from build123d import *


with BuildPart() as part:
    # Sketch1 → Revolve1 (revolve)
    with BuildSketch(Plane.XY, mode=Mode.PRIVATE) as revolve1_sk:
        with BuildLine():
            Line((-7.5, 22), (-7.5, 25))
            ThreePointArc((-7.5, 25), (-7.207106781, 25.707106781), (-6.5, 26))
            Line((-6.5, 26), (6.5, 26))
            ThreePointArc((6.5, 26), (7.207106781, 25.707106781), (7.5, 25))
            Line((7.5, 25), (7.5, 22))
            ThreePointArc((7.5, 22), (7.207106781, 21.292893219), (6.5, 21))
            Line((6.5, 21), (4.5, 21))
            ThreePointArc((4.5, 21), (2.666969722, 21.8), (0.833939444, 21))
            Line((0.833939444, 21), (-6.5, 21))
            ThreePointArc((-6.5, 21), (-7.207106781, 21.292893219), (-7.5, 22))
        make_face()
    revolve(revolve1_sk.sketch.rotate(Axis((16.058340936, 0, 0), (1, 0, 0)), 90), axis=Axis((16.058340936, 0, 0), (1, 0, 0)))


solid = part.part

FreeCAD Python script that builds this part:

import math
import FreeCAD as App
import Part
import Sketcher
from FreeCAD import Vector

doc = App.newDocument("Part")
body = doc.addObject("PartDesign::Body", "Body")

sketch1 = body.newObject("Sketcher::SketchObject", "Sketch")
sketch1.AttachmentSupport = (doc.getObject("XY_Plane"), [""])
sketch1.MapMode = "FlatFace"
sketch1.addGeometry([
    Part.LineSegment(Vector(-7.5, 25, 0), Vector(-7.5, 22, 0)),
    Part.ArcOfCircle(Part.Circle(Vector(-6.5, 22, 0), Vector(0, 0, 1), 1), math.radians(-180), math.radians(-90)),
    Part.LineSegment(Vector(-6.5, 21, 0), Vector(0.833939, 21, 0)),
    Part.ArcOfCircle(Part.Circle(Vector(2.66697, 19.3, 0), Vector(0, 0, 1), 2.5), math.radians(42.843643), math.radians(137.156357)),
    Part.LineSegment(Vector(4.5, 21, 0), Vector(6.5, 21, 0)),
    Part.ArcOfCircle(Part.Circle(Vector(6.5, 22, 0), Vector(0, 0, 1), 1), math.radians(-90), math.radians(0)),
    Part.LineSegment(Vector(7.5, 22, 0), Vector(7.5, 25, 0)),
    Part.ArcOfCircle(Part.Circle(Vector(6.5, 25, 0), Vector(0, 0, 1), 1), math.radians(0), math.radians(90)),
    Part.LineSegment(Vector(6.5, 26, 0), Vector(-6.5, 26, 0)),
    Part.ArcOfCircle(Part.Circle(Vector(-6.5, 25, 0), Vector(0, 0, 1), 1), math.radians(90), math.radians(180)),
], False)
sketch1.addConstraint([
    Sketcher.Constraint("Tangent", 0, 2, 1, 1),
    Sketcher.Constraint("Tangent", 1, 2, 2, 1),
    Sketcher.Constraint("Coincident", 2, 2, 3, 2),
    Sketcher.Constraint("Coincident", 3, 1, 4, 1),
    Sketcher.Constraint("Tangent", 4, 2, 5, 1),
    Sketcher.Constraint("Tangent", 5, 2, 6, 1),
    Sketcher.Constraint("Tangent", 6, 2, 7, 1),
    Sketcher.Constraint("Tangent", 7, 2, 8, 1),
    Sketcher.Constraint("Tangent", 8, 2, 9, 1),
    Sketcher.Constraint("Tangent", 9, 2, 0, 1),
    Sketcher.Constraint("Vertical", 0),
    Sketcher.Constraint("Horizontal", 2),
    Sketcher.Constraint("Horizontal", 4),
    Sketcher.Constraint("Vertical", 6),
    Sketcher.Constraint("Horizontal", 8),
    Sketcher.Constraint("Equal", 1, 5),
    Sketcher.Constraint("Equal", 5, 7),
    Sketcher.Constraint("Equal", 7, 9),
    Sketcher.Constraint("Symmetric", 1, 3, 5, 3, -2),
    Sketcher.Constraint("Radius", 1, 1.0),
    Sketcher.Constraint("Radius", 3, 2.5),
    Sketcher.Constraint("DistanceX", 4, 1, 4, 2, 2.0),
    Sketcher.Constraint("DistanceX", 8, 2, 8, 1, 13.0),
    Sketcher.Constraint("DistanceY", 0, 2, 0, 1, 3.0),
    Sketcher.Constraint("DistanceY", -1, 1, 1, 3, 22.0),
    Sketcher.Constraint("DistanceY", -1, 1, 3, 3, 19.3),
])
revolution = body.newObject("PartDesign::Revolution", "Revolution")
revolution.Profile = sketch1
revolution.ReferenceAxis = (sketch1, ["H_Axis"])
revolution.Angle = 360

doc.recompute()
